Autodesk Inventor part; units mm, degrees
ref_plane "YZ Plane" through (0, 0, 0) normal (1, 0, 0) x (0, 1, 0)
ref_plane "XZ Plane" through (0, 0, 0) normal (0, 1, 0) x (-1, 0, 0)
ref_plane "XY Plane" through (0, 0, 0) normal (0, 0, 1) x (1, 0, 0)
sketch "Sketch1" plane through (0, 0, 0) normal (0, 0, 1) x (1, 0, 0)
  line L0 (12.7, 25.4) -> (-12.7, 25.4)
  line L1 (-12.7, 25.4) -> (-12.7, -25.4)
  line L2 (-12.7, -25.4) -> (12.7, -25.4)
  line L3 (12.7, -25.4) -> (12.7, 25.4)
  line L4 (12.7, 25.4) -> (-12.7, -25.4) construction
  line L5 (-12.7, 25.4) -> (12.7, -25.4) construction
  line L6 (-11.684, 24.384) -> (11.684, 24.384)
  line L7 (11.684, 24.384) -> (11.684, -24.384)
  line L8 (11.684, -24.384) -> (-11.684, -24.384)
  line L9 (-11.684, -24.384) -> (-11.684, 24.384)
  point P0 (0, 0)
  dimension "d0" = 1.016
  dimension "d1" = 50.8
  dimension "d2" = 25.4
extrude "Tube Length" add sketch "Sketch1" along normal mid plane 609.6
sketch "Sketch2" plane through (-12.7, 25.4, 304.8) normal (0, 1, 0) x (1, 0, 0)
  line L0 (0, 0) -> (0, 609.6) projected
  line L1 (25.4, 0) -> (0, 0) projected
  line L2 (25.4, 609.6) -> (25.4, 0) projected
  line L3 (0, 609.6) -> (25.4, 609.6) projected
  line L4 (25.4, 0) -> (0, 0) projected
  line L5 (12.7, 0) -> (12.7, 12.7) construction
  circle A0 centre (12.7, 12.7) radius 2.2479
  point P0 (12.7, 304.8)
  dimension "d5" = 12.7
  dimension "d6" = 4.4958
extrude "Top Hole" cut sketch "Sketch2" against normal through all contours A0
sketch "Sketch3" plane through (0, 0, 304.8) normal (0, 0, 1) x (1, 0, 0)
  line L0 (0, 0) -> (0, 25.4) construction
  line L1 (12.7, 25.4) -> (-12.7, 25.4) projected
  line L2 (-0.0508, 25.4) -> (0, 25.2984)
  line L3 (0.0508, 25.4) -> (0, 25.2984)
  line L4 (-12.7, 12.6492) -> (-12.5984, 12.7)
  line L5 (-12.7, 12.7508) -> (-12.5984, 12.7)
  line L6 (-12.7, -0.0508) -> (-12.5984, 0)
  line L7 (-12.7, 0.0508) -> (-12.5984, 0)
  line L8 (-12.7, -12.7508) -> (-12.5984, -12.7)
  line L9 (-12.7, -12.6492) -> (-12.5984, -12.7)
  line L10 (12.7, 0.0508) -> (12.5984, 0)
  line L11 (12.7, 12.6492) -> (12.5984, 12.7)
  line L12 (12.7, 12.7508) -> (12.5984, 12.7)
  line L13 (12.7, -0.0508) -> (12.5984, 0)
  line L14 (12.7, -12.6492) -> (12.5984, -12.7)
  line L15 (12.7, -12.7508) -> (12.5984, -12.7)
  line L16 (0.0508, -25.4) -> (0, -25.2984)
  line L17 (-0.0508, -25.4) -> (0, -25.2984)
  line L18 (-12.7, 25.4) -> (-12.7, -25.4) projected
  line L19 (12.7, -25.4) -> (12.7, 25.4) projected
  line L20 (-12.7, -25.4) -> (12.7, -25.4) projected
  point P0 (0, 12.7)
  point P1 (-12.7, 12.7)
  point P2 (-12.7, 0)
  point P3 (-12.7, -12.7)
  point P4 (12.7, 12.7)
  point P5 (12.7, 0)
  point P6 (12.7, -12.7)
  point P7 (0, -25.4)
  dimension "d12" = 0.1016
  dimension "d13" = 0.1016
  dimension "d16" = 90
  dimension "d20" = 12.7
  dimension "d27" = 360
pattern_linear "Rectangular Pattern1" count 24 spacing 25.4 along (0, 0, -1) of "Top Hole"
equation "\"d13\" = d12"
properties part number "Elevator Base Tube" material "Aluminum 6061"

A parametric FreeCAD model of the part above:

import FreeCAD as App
import Part
import Sketcher

V = App.Vector
Q = App.Units.Quantity

doc = App.newDocument("Part")
body = doc.addObject("PartDesign::Body", "Body")

# Sketch on XY plane
sketch1 = body.newObject("Sketcher::SketchObject", "Sketch")
sketch1.AttachmentSupport = (doc.getObject("XY_Plane"), [""])
sketch1.MapMode = "FlatFace"
sketch1.addGeometry(Part.LineSegment(V(13, -25, 0), V(13, 25, 0)), False)
sketch1.addGeometry(Part.LineSegment(V(13, 25, 0), V(-13, 25, 0)), False)
sketch1.addGeometry(Part.LineSegment(V(-13, 25, 0), V(-13, -25, 0)), False)
sketch1.addGeometry(Part.LineSegment(V(-13, -25, 0), V(13, -25, 0)), False)
sketch1.addGeometry(Part.LineSegment(V(-12, -24, 0), V(-12, 24, 0)), False)
sketch1.addGeometry(Part.LineSegment(V(-12, 24, 0), V(12, 24, 0)), False)
sketch1.addGeometry(Part.LineSegment(V(12, 24, 0), V(12, -24, 0)), False)
sketch1.addGeometry(Part.LineSegment(V(12, -24, 0), V(-12, -24, 0)), False)
sketch1.addConstraint(Sketcher.Constraint("Coincident", 0, 2, 1, 1))
sketch1.addConstraint(Sketcher.Constraint("Coincident", 1, 2, 2, 1))
sketch1.addConstraint(Sketcher.Constraint("Coincident", 2, 2, 3, 1))
sketch1.addConstraint(Sketcher.Constraint("Coincident", 3, 2, 0, 1))
sketch1.addConstraint(Sketcher.Constraint("Coincident", 4, 2, 5, 1))
sketch1.addConstraint(Sketcher.Constraint("Coincident", 5, 2, 6, 1))
sketch1.addConstraint(Sketcher.Constraint("Coincident", 6, 2, 7, 1))
sketch1.addConstraint(Sketcher.Constraint("Coincident", 7, 2, 4, 1))
sketch1.addConstraint(Sketcher.Constraint("Vertical", 0))
sketch1.addConstraint(Sketcher.Constraint("Horizontal", 1))
sketch1.addConstraint(Sketcher.Constraint("Vertical", 2))
sketch1.addConstraint(Sketcher.Constraint("Horizontal", 3))
sketch1.addConstraint(Sketcher.Constraint("Vertical", 4))
sketch1.addConstraint(Sketcher.Constraint("Horizontal", 5))
sketch1.addConstraint(Sketcher.Constraint("Vertical", 6))
sketch1.addConstraint(Sketcher.Constraint("Horizontal", 7))
sketch1.addConstraint(Sketcher.Constraint("Symmetric", 0, 2, 2, 2, -1, 1))
sketch1.addConstraint(Sketcher.Constraint("Symmetric", 4, 2, 6, 2, -1, 1))
sketch1.addConstraint(Sketcher.Constraint("DistanceX", 1, 2, 1, 1, Q("1 in")))
sketch1.addConstraint(Sketcher.Constraint("DistanceY", 0, 1, 0, 2, Q("2 in")))
sketch1.addConstraint(Sketcher.Constraint("DistanceX", 1, 2, 4, 2, Q("0.04 in")))
sketch1.addConstraint(Sketcher.Constraint("DistanceY", 4, 2, 1, 2, Q("0.04 in")))
pad1 = body.newObject("PartDesign::Pad", "Pad")
pad1.Profile = sketch1
pad1.Length = Q("24 in")
pad1.Midplane = True

# Sketch on XZ plane
sketch2 = body.newObject("Sketcher::SketchObject", "Sketch001")
sketch2.AttachmentSupport = (doc.getObject("XZ_Plane"), [""])
sketch2.MapMode = "FlatFace"
sketch2.AttachmentOffset = App.Placement(V(0, 0, -1 * 25.4), App.Rotation())
sketch2.addGeometry(Part.Circle(V(0, 292.1, 0), V(0, 0, 1), 2.2), False)
sketch2.addConstraint(Sketcher.Constraint("PointOnObject", 0, 3, -2))
sketch2.addConstraint(Sketcher.Constraint("Diameter", 0, Q("0.177 in")))
sketch2.addConstraint(Sketcher.Constraint("DistanceY", -1, 1, 0, 3, Q("11.5 in")))
pocket1 = body.newObject("PartDesign::Pocket", "Pocket")
pocket1.Profile = sketch2
pocket1.Type = "ThroughAll"
pocket1.Reversed = True
doc.recompute()

linearpattern = body.newObject("PartDesign::LinearPattern", "LinearPattern")
linearpattern.Originals = [pocket1]
linearpattern.Direction = (doc.getObject("Z_Axis"), [""])
linearpattern.Mode = "offset"
linearpattern.Offset = Q("1 in")
linearpattern.Occurrences = 24
linearpattern.Reversed = True
body.Tip = linearpattern

doc.recompute()
